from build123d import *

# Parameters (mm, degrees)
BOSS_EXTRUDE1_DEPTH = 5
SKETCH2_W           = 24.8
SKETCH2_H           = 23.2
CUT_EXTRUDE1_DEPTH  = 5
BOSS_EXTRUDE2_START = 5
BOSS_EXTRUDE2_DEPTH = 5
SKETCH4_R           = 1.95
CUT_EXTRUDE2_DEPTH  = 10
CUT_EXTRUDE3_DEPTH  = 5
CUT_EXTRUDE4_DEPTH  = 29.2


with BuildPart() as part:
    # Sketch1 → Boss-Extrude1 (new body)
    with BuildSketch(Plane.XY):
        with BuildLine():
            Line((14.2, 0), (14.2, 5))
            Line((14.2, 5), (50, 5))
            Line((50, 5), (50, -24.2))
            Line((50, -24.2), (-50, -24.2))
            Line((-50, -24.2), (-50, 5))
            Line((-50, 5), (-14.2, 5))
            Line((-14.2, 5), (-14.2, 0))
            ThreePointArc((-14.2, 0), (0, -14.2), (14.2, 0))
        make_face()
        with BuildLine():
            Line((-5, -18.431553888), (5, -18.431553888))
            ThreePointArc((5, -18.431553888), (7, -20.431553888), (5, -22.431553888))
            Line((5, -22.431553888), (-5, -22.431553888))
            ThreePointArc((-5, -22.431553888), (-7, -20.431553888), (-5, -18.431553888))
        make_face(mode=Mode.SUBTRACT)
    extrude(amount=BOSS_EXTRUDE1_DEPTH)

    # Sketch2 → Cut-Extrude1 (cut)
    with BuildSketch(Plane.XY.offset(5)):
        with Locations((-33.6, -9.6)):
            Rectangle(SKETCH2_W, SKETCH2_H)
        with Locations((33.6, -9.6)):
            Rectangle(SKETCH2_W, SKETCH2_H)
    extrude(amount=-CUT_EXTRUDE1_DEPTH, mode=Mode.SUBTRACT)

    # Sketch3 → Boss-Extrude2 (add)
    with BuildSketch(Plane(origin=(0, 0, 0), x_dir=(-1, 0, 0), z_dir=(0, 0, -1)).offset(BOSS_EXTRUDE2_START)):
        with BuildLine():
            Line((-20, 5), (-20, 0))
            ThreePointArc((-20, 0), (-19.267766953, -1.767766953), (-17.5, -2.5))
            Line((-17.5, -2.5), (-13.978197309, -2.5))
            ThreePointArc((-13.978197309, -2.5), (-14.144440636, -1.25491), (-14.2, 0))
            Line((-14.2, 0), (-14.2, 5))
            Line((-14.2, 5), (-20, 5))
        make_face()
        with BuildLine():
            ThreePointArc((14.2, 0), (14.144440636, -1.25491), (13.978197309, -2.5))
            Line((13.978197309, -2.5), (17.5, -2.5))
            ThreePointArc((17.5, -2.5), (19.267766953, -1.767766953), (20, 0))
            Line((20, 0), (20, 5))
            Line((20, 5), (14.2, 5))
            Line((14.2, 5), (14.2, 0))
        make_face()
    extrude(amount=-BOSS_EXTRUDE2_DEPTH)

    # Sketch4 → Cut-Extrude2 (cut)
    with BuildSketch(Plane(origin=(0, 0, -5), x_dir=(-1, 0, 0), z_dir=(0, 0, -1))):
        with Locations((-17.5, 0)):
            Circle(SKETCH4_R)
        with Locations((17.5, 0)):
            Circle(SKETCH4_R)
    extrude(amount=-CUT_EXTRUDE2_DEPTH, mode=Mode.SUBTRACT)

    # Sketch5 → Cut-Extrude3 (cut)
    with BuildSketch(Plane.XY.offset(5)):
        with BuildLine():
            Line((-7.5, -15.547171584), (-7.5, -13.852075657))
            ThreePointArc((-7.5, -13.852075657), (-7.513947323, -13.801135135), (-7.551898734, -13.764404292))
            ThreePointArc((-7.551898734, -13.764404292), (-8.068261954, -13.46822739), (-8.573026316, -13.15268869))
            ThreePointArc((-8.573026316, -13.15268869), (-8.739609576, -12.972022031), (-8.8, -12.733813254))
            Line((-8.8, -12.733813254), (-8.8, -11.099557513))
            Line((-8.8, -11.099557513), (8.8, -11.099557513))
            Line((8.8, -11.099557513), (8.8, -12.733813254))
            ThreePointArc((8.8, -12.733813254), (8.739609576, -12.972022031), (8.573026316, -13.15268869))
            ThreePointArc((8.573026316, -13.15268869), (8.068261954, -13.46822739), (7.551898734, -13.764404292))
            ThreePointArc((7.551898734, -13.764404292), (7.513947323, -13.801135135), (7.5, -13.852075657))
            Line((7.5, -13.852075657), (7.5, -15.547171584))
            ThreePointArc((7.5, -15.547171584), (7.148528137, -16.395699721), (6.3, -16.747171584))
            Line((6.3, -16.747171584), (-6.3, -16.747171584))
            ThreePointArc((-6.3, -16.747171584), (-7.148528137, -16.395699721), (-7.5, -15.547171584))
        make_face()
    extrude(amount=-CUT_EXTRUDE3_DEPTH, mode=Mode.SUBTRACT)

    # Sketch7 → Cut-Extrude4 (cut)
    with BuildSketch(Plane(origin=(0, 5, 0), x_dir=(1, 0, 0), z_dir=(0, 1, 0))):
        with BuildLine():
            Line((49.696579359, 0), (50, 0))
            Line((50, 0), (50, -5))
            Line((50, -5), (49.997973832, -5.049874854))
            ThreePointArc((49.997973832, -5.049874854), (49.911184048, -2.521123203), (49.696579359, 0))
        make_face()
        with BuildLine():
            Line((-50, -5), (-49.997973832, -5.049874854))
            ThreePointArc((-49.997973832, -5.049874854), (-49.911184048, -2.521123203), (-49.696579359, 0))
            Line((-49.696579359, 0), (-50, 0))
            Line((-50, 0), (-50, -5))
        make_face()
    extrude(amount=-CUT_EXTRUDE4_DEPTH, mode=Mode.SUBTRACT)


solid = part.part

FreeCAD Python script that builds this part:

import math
import FreeCAD as App
import Part
import Sketcher
from FreeCAD import Vector
Q = App.Units.Quantity

doc = App.newDocument("Part")
params = doc.addObject("Spreadsheet::Sheet", "Params")
for row, (alias, value) in enumerate([
    ("sketch1_radius", "2 mm"),
    ("sketch1_radius2", "14.2 mm"),
    ("sketch1_width", "100 mm"),
    ("sketch1_width2", "10 mm"),
    ("sketch1_height", "5 mm"),
    ("pad1_length", "5 mm"),
    ("sketch2_width", "24.8 mm"),
    ("sketch2_height", "23.2 mm"),
    ("pocket1_length", "5 mm"),
    ("sketch3_radius", "2.5 mm"),
    ("sketch3_radius2", "14.2 mm"),
    ("sketch3_height", "5 mm"),
    ("sketch3_width", "5.8 mm"),
    ("pad2_length", "5 mm"),
    ("sketch4_diameter", "3.9 mm"),
    ("pocket2_length", "10 mm"),
    ("sketch5_radius", "1.2 mm"),
    ("sketch5_radius2", "0.1 mm"),
    ("sketch5_radius3", "15.7 mm"),
    ("sketch5_radius4", "0.5 mm"),
    ("sketch5_width", "12.6 mm"),
    ("pocket3_length", "5 mm"),
    ("sketch6_radius", "49.999999 mm"),
    ("sketch6_height", "5 mm"),
    ("pocket4_length", "29.2 mm"),
], start=1):
    params.set(f"A{row}", alias)
    params.set(f"B{row}", "=" + value)
    params.setAlias(f"B{row}", alias)

body = doc.addObject("PartDesign::Body", "Body")

# Sketch on XY plane
sketch1 = body.newObject("Sketcher::SketchObject", "Sketch")
sketch1.AttachmentSupport = (doc.getObject("XY_Plane"), [""])
sketch1.MapMode = "FlatFace"
sketch1.addGeometry(Part.LineSegment(Vector(14.2, 5, 0), Vector(14.2, 0, 0)), False)
sketch1.addGeometry(Part.ArcOfCircle(Part.Circle(Vector(0, 0, 0), Vector(0, 0, 1), 14.2), math.radians(180), math.radians(360)), False)
sketch1.addGeometry(Part.LineSegment(Vector(-14.2, 0, 0), Vector(-14.2, 5, 0)), False)
sketch1.addGeometry(Part.LineSegment(Vector(-14.2, 5, 0), Vector(-50, 5, 0)), False)
sketch1.addGeometry(Part.LineSegment(Vector(-50, 5, 0), Vector(-50, -24.2, 0)), False)
sketch1.addGeometry(Part.LineSegment(Vector(-50, -24.2, 0), Vector(50, -24.2, 0)), False)
sketch1.addGeometry(Part.LineSegment(Vector(50, -24.2, 0), Vector(50, 5, 0)), False)
sketch1.addGeometry(Part.LineSegment(Vector(50, 5, 0), Vector(14.2, 5, 0)), False)
sketch1.addGeometry(Part.LineSegment(Vector(-5, -18.431554, 0), Vector(5, -18.431554, 0)), False)
sketch1.addGeometry(Part.ArcOfCircle(Part.Circle(Vector(5, -20.431554, 0), Vector(0, 0, 1), 2), math.radians(-90), math.radians(90)), False)
sketch1.addGeometry(Part.LineSegment(Vector(5, -22.431554, 0), Vector(-5, -22.431554, 0)), False)
sketch1.addGeometry(Part.ArcOfCircle(Part.Circle(Vector(-5, -20.431554, 0), Vector(0, 0, 1), 2), math.radians(90), math.radians(270)), False)
sketch1.addConstraint(Sketcher.Constraint("Tangent", 0, 2, 1, 2))
sketch1.addConstraint(Sketcher.Constraint("Tangent", 1, 1, 2, 1))
sketch1.addConstraint(Sketcher.Constraint("Coincident", 2, 2, 3, 1))
sketch1.addConstraint(Sketcher.Constraint("Coincident", 3, 2, 4, 1))
sketch1.addConstraint(Sketcher.Constraint("Coincident", 4, 2, 5, 1))
sketch1.addConstraint(Sketcher.Constraint("Coincident", 5, 2, 6, 1))
sketch1.addConstraint(Sketcher.Constraint("Coincident", 6, 2, 7, 1))
sketch1.addConstraint(Sketcher.Constraint("Coincident", 7, 2, 0, 1))
sketch1.addConstraint(Sketcher.Constraint("Tangent", 8, 2, 9, 2))
sketch1.addConstraint(Sketcher.Constraint("Tangent", 9, 1, 10, 1))
sketch1.addConstraint(Sketcher.Constraint("Tangent", 10, 2, 11, 2))
sketch1.addConstraint(Sketcher.Constraint("Tangent", 11, 1, 8, 1))
sketch1.addConstraint(Sketcher.Constraint("Vertical", 0))
sketch1.addConstraint(Sketcher.Constraint("Vertical", 2))
sketch1.addConstraint(Sketcher.Constraint("Horizontal", 3))
sketch1.addConstraint(Sketcher.Constraint("Vertical", 4))
sketch1.addConstraint(Sketcher.Constraint("Horizontal", 5))
sketch1.addConstraint(Sketcher.Constraint("Vertical", 6))
sketch1.addConstraint(Sketcher.Constraint("Horizontal", 7))
sketch1.addConstraint(Sketcher.Constraint("Horizontal", 8))
sketch1.addConstraint(Sketcher.Constraint("Horizontal", 10))
sketch1.addConstraint(Sketcher.Constraint("Coincident", 1, 3, -1, 1))
sketch1.addConstraint(Sketcher.Constraint("Symmetric", 3, 2, 6, 2, -2))
sketch1.addConstraint(Sketcher.Constraint("Radius", 9, Q("2 mm")))
sketch1.addConstraint(Sketcher.Constraint("Radius", 1, Q("14.2 mm")))
sketch1.addConstraint(Sketcher.Constraint("DistanceX", 5, 1, 5, 2, Q("100 mm")))
sketch1.addConstraint(Sketcher.Constraint("DistanceX", 8, 1, 8, 2, Q("10 mm")))
sketch1.addConstraint(Sketcher.Constraint("DistanceY", 0, 2, 0, 1, Q("5 mm")))
sketch1.addConstraint(Sketcher.Constraint("DistanceY", 4, 2, 4, 1, Q("29.2 mm")))
sketch1.addConstraint(Sketcher.Constraint("DistanceX", -1, 1, 9, 3, Q("5 mm")))
sketch1.addConstraint(Sketcher.Constraint("DistanceY", 9, 3, -1, 1, Q("20.431554 mm")))
sketch1.setExpression("Constraints[23]", "Params.sketch1_radius")
sketch1.setExpression("Constraints[24]", "Params.sketch1_radius2")
sketch1.setExpression("Constraints[25]", "Params.sketch1_width")
sketch1.setExpression("Constraints[26]", "Params.sketch1_width2")
sketch1.setExpression("Constraints[27]", "Params.sketch1_height")
pad1 = body.newObject("PartDesign::Pad", "Pad")
pad1.Profile = sketch1
pad1.setExpression("Length", "Params.pad1_length")

# Sketch on XY plane
sketch2 = body.newObject("Sketcher::SketchObject", "Sketch001")
sketch2.AttachmentSupport = (doc.getObject("XY_Plane"), [""])
sketch2.MapMode = "FlatFace"
sketch2.AttachmentOffset = App.Placement(Vector(0, 0, 5), App.Rotation())
sketch2.addGeometry(Part.LineSegment(Vector(-46, 2, 0), Vector(-46, -21.2, 0)), False)
sketch2.addGeometry(Part.LineSegment(Vector(-46, -21.2, 0), Vector(-21.2, -21.2, 0)), False)
sketch2.addGeometry(Part.LineSegment(Vector(-21.2, -21.2, 0), Vector(-21.2, 2, 0)), False)
sketch2.addGeometry(Part.LineSegment(Vector(-21.2, 2, 0), Vector(-46, 2, 0)), False)
sketch2.addGeometry(Part.LineSegment(Vector(21.2, 2, 0), Vector(21.2, -21.2, 0)), False)
sketch2.addGeometry(Part.LineSegment(Vector(21.2, -21.2, 0), Vector(46, -21.2, 0)), False)
sketch2.addGeometry(Part.LineSegment(Vector(46, -21.2, 0), Vector(46, 2, 0)), False)
sketch2.addGeometry(Part.LineSegment(Vector(46, 2, 0), Vector(21.2, 2, 0)), False)
sketch2.addConstraint(Sketcher.Constraint("Coincident", 0, 2, 1, 1))
sketch2.addConstraint(Sketcher.Constraint("Coincident", 1, 2, 2, 1))
sketch2.addConstraint(Sketcher.Constraint("Coincident", 2, 2, 3, 1))
sketch2.addConstraint(Sketcher.Constraint("Coincident", 3, 2, 0, 1))
sketch2.addConstraint(Sketcher.Constraint("Coincident", 4, 2, 5, 1))
sketch2.addConstraint(Sketcher.Constraint("Coincident", 5, 2, 6, 1))
sketch2.addConstraint(Sketcher.Constraint("Coincident", 6, 2, 7, 1))
sketch2.addConstraint(Sketcher.Constraint("Coincident", 7, 2, 4, 1))
sketch2.addConstraint(Sketcher.Constraint("Vertical", 0))
sketch2.addConstraint(Sketcher.Constraint("Horizontal", 1))
sketch2.addConstraint(Sketcher.Constraint("Vertical", 2))
sketch2.addConstraint(Sketcher.Constraint("Horizontal", 3))
sketch2.addConstraint(Sketcher.Constraint("Vertical", 4))
sketch2.addConstraint(Sketcher.Constraint("Horizontal", 5))
sketch2.addConstraint(Sketcher.Constraint("Vertical", 6))
sketch2.addConstraint(Sketcher.Constraint("Horizontal", 7))
sketch2.addConstraint(Sketcher.Constraint("Symmetric", 1, 2, 4, 2, -2))
sketch2.addConstraint(Sketcher.Constraint("Symmetric", 3, 2, 6, 2, -2))
sketch2.addConstraint(Sketcher.Constraint("DistanceX", 1, 1, 1, 2, Q("24.8 mm")))
sketch2.addConstraint(Sketcher.Constraint("DistanceY", 0, 2, 0, 1, Q("23.2 mm")))
sketch2.addConstraint(Sketcher.Constraint("DistanceX", 0, 2, -1, 1, Q("46 mm")))
sketch2.addConstraint(Sketcher.Constraint("DistanceY", -1, 1, 2, 2, Q("2 mm")))
sketch2.setExpression("Constraints[18]", "Params.sketch2_width")
sketch2.setExpression("Constraints[19]", "Params.sketch2_height")
pocket1 = body.newObject("PartDesign::Pocket", "Pocket")
pocket1.Profile = sketch2
pocket1.setExpression("Length", "Params.pocket1_length")

# Sketch on XY plane
sketch3 = body.newObject("Sketcher::SketchObject", "Sketch002")
sketch3.AttachmentSupport = (doc.getObject("XY_Plane"), [""])
sketch3.MapMode = "FlatFace"
sketch3.AttachmentOffset = App.Placement(Vector(0, 0, -5), App.Rotation())
sketch3.addGeometry(Part.LineSegment(Vector(20, 5, 0), Vector(20, 0, 0)), False)
sketch3.addGeometry(Part.ArcOfCircle(Part.Circle(Vector(17.5, 0, 0), Vector(0, 0, 1), 2.5), math.radians(-90), math.radians(0)), False)
sketch3.addGeometry(Part.LineSegment(Vector(17.5, -2.5, 0), Vector(13.978197, -2.5, 0)), False)
sketch3.addGeometry(Part.ArcOfCircle(Part.Circle(Vector(0, 0, 0), Vector(0, 0, 1), 14.2), math.radians(-10.140136), math.radians(0)), False)
sketch3.addGeometry(Part.LineSegment(Vector(14.2, 0, 0), Vector(14.2, 5, 0)), False)
sketch3.addGeometry(Part.LineSegment(Vector(14.2, 5, 0), Vector(20, 5, 0)), False)
sketch3.addGeometry(Part.ArcOfCircle(Part.Circle(Vector(0, 0, 0), Vector(0, 0, 1), 14.2), math.radians(180), math.radians(190.140136)), False)
sketch3.addGeometry(Part.LineSegment(Vector(-13.978197, -2.5, 0), Vector(-17.5, -2.5, 0)), False)
sketch3.addGeometry(Part.ArcOfCircle(Part.Circle(Vector(-17.5, 0, 0), Vector(0, 0, 1), 2.5), math.radians(180), math.radians(270)), False)
sketch3.addGeometry(Part.LineSegment(Vector(-20, 0, 0), Vector(-20, 5, 0)), False)
sketch3.addGeometry(Part.LineSegment(Vector(-20, 5, 0), Vector(-14.2, 5, 0)), False)
sketch3.addGeometry(Part.LineSegment(Vector(-14.2, 5, 0), Vector(-14.2, 0, 0)), False)
sketch3.addConstraint(Sketcher.Constraint("Tangent", 0, 2, 1, 2))
sketch3.addConstraint(Sketcher.Constraint("Tangent", 1, 1, 2, 1))
sketch3.addConstraint(Sketcher.Constraint("Coincident", 2, 2, 3, 1))
sketch3.addConstraint(Sketcher.Constraint("Tangent", 3, 2, 4, 1))
sketch3.addConstraint(Sketcher.Constraint("Coincident", 4, 2, 5, 1))
sketch3.addConstraint(Sketcher.Constraint("Coincident", 5, 2, 0, 1))
sketch3.addConstraint(Sketcher.Constraint("Coincident", 6, 2, 7, 1))
sketch3.addConstraint(Sketcher.Constraint("Tangent", 7, 2, 8, 2))
sketch3.addConstraint(Sketcher.Constraint("Tangent", 8, 1, 9, 1))
sketch3.addConstraint(Sketcher.Constraint("Coincident", 9, 2, 10, 1))
sketch3.addConstraint(Sketcher.Constraint("Coincident", 10, 2, 11, 1))
sketch3.addConstraint(Sketcher.Constraint("Tangent", 11, 2, 6, 1))
sketch3.addConstraint(Sketcher.Constraint("Vertical", 0))
sketch3.addConstraint(Sketcher.Constraint("Horizontal", 2))
sketch3.addConstraint(Sketcher.Constraint("Vertical", 4))
sketch3.addConstraint(Sketcher.Constraint("Horizontal", 5))
sketch3.addConstraint(Sketcher.Constraint("Horizontal", 7))
sketch3.addConstraint(Sketcher.Constraint("Vertical", 9))
sketch3.addConstraint(Sketcher.Constraint("Horizontal", 10))
sketch3.addConstraint(Sketcher.Constraint("Vertical", 11))
sketch3.addConstraint(Sketcher.Constraint("Coincident", 3, 3, -1, 1))
sketch3.addConstraint(Sketcher.Constraint("Coincident", 6, 3, -1, 1))
sketch3.addConstraint(Sketcher.Constraint("Equal", 3, 6))
sketch3.addConstraint(Sketcher.Constraint("Equal", 1, 8))
sketch3.addConstraint(Sketcher.Constraint("Symmetric", 1, 3, 8, 3, -1, 1))
sketch3.addConstraint(Sketcher.Constraint("PointOnObject", 1, 3, -1))
sketch3.addConstraint(Sketcher.Constraint("Horizontal", 5, 2, 9, 2))
sketch3.addConstraint(Sketcher.Constraint("Radius", 1, Q("2.5 mm")))
sketch3.addConstraint(Sketcher.Constraint("Radius", 3, Q("14.2 mm")))
sketch3.addConstraint(Sketcher.Constraint("DistanceY", 0, 2, 0, 1, Q("5 mm")))
sketch3.addConstraint(Sketcher.Constraint("DistanceX", 5, 1, 5, 2, Q("5.8 mm")))
sketch3.setExpression("Constraints[27]", "Params.sketch3_radius")
sketch3.setExpression("Constraints[28]", "Params.sketch3_radius2")
sketch3.setExpression("Constraints[29]", "Params.sketch3_height")
sketch3.setExpression("Constraints[30]", "Params.sketch3_width")
pad2 = body.newObject("PartDesign::Pad", "Pad001")
pad2.Profile = sketch3
pad2.setExpression("Length", "Params.pad2_length")

# Sketch on XY plane
sketch4 = body.newObject("Sketcher::SketchObject", "Sketch003")
sketch4.AttachmentSupport = (doc.getObject("XY_Plane"), [""])
sketch4.MapMode = "FlatFace"
sketch4.AttachmentOffset = App.Placement(Vector(0, 0, -5), App.Rotation())
sketch4.addGeometry(Part.Circle(Vector(17.5, 0, 0), Vector(0, 0, 1), 1.95), False)
sketch4.addGeometry(Part.Circle(Vector(-17.5, 0, 0), Vector(0, 0, 1), 1.95), False)
sketch4.addConstraint(Sketcher.Constraint("Equal", 0, 1))
sketch4.addConstraint(Sketcher.Constraint("Symmetric", 0, 3, 1, 3, -1, 1))
sketch4.addConstraint(Sketcher.Constraint("PointOnObject", 0, 3, -1))
sketch4.addConstraint(Sketcher.Constraint("Diameter", 0, Q("3.9 mm")))
sketch4.addConstraint(Sketcher.Constraint("DistanceX", 1, 3, 0, 3, Q("35 mm")))
sketch4.setExpression("Constraints[3]", "Params.sketch4_diameter")
pocket2 = body.newObject("PartDesign::Pocket", "Pocket001")
pocket2.Profile = sketch4
pocket2.setExpression("Length", "Params.pocket2_length")
pocket2.Reversed = True

# Sketch on XY plane
sketch5 = body.newObject("Sketcher::SketchObject", "Sketch004")
sketch5.AttachmentSupport = (doc.getObject("XY_Plane"), [""])
sketch5.MapMode = "FlatFace"
sketch5.AttachmentOffset = App.Placement(Vector(0, 0, 5), App.Rotation())
sketch5.addGeometry(Part.LineSegment(Vector(-7.5, -13.852076, 0), Vector(-7.5, -15.547172, 0)), False)
sketch5.addGeometry(Part.ArcOfCircle(Part.Circle(Vector(-6.3, -15.547172, 0), Vector(0, 0, 1), 1.2), math.radians(-180), math.radians(-90)), False)
sketch5.addGeometry(Part.LineSegment(Vector(-6.3, -16.747172, 0), Vector(6.3, -16.747172, 0)), False)
sketch5.addGeometry(Part.ArcOfCircle(Part.Circle(Vector(6.3, -15.547172, 0), Vector(0, 0, 1), 1.2), math.radians(-90), math.radians(0)), False)
sketch5.addGeometry(Part.LineSegment(Vector(7.5, -15.547172, 0), Vector(7.5, -13.852076, 0)), False)
sketch5.addGeometry(Part.ArcOfCircle(Part.Circle(Vector(7.6, -13.852076, 0), Vector(0, 0, 1), 0.1), math.radians(118.751562), math.radians(180)), False)
sketch5.addGeometry(Part.ArcOfCircle(Part.Circle(Vector(0, 0, 0), Vector(0, 0, 1), 15.7), math.radians(-61.248439), math.radians(-56.903374)), False)
sketch5.addGeometry(Part.ArcOfCircle(Part.Circle(Vector(8.3, -12.733813, 0), Vector(0, 0, 1), 0.5), math.radians(-56.903374), math.radians(0)), False)
sketch5.addGeometry(Part.LineSegment(Vector(8.8, -12.733813, 0), Vector(8.8, -11.099558, 0)), False)
sketch5.addGeometry(Part.LineSegment(Vector(8.8, -11.099558, 0), Vector(-8.8, -11.099558, 0)), False)
sketch5.addGeometry(Part.LineSegment(Vector(-8.8, -11.099558, 0), Vector(-8.8, -12.733813, 0)), False)
sketch5.addGeometry(Part.ArcOfCircle(Part.Circle(Vector(-8.3, -12.733813, 0), Vector(0, 0, 1), 0.5), math.radians(180), math.radians(236.903374)), False)
sketch5.addGeometry(Part.ArcOfCircle(Part.Circle(Vector(0, 0, 0), Vector(0, 0, 1), 15.7), math.radians(-123.096626), math.radians(-118.751561)), False)
sketch5.addGeometry(Part.ArcOfCircle(Part.Circle(Vector(-7.6, -13.852076, 0), Vector(0, 0, 1), 0.1), math.radians(0), math.radians(61.248438)), False)
sketch5.addConstraint(Sketcher.Constraint("Tangent", 0, 2, 1, 1))
sketch5.addConstraint(Sketcher.Constraint("Tangent", 1, 2, 2, 1))
sketch5.addConstraint(Sketcher.Constraint("Tangent", 2, 2, 3, 1))
sketch5.addConstraint(Sketcher.Constraint("Tangent", 3, 2, 4, 1))
sketch5.addConstraint(Sketcher.Constraint("Tangent", 4, 2, 5, 2))
sketch5.addConstraint(Sketcher.Constraint("Tangent", 5, 1, 6, 1))
sketch5.addConstraint(Sketcher.Constraint("Tangent", 6, 2, 7, 1))
sketch5.addConstraint(Sketcher.Constraint("Tangent", 7, 2, 8, 1))
sketch5.addConstraint(Sketcher.Constraint("Coincident", 8, 2, 9, 1))
sketch5.addConstraint(Sketcher.Constraint("Coincident", 9, 2, 10, 1))
sketch5.addConstraint(Sketcher.Constraint("Tangent", 10, 2, 11, 1))
sketch5.addConstraint(Sketcher.Constraint("Tangent", 11, 2, 12, 1))
sketch5.addConstraint(Sketcher.Constraint("Tangent", 12, 2, 13, 2))
sketch5.addConstraint(Sketcher.Constraint("Tangent", 13, 1, 0, 1))
sketch5.addConstraint(Sketcher.Constraint("Vertical", 0))
sketch5.addConstraint(Sketcher.Constraint("Horizontal", 2))
sketch5.addConstraint(Sketcher.Constraint("Vertical", 4))
sketch5.addConstraint(Sketcher.Constraint("Vertical", 8))
sketch5.addConstraint(Sketcher.Constraint("Horizontal", 9))
sketch5.addConstraint(Sketcher.Constraint("Vertical", 10))
sketch5.addConstraint(Sketcher.Constraint("Coincident", 6, 3, -1, 1))
sketch5.addConstraint(Sketcher.Constraint("Coincident", 12, 3, -1, 1))
sketch5.addConstraint(Sketcher.Constraint("Equal", 1, 3))
sketch5.addConstraint(Sketcher.Constraint("Equal", 7, 11))
sketch5.addConstraint(Sketcher.Constraint("Equal", 6, 12))
sketch5.addConstraint(Sketcher.Constraint("Equal", 5, 13))
sketch5.addConstraint(Sketcher.Constraint("Horizontal", 7, 3, 11, 3))
sketch5.addConstraint(Sketcher.Constraint("Horizontal", 5, 3, 13, 3))
sketch5.addConstraint(Sketcher.Constraint("Radius", 1, Q("1.2 mm")))
sketch5.addConstraint(Sketcher.Constraint("Radius", 5, Q("0.1 mm")))
sketch5.addConstraint(Sketcher.Constraint("Radius", 6, Q("15.7 mm")))
sketch5.addConstraint(Sketcher.Constraint("Radius", 7, Q("0.5 mm")))
sketch5.addConstraint(Sketcher.Constraint("DistanceX", 2, 1, 2, 2, Q("12.6 mm")))
sketch5.addConstraint(Sketcher.Constraint("DistanceX", 9, 2, 9, 1, Q("17.6 mm")))
sketch5.addConstraint(Sketcher.Constraint("DistanceY", 0, 2, 0, 1, Q("1.695096 mm")))
sketch5.addConstraint(Sketcher.Constraint("DistanceY", 8, 1, 8, 2, Q("1.634256 mm")))
sketch5.setExpression("Constraints[28]", "Params.sketch5_radius")
sketch5.setExpression("Constraints[29]", "Params.sketch5_radius2")
sketch5.setExpression("Constraints[30]", "Params.sketch5_radius3")
sketch5.setExpression("Constraints[31]", "Params.sketch5_radius4")
sketch5.setExpression("Constraints[32]", "Params.sketch5_width")
pocket3 = body.newObject("PartDesign::Pocket", "Pocket002")
pocket3.Profile = sketch5
pocket3.setExpression("Length", "Params.pocket3_length")

# Sketch on XZ plane
sketch6 = body.newObject("Sketcher::SketchObject", "Sketch005")
sketch6.AttachmentSupport = (doc.getObject("XZ_Plane"), [""])
sketch6.MapMode = "FlatFace"
sketch6.AttachmentOffset = App.Placement(Vector(0, 0, -5), App.Rotation())
sketch6.addGeometry(Part.LineSegment(Vector(50, 0, 0), Vector(49.696579, 0, 0)), False)
sketch6.addGeometry(Part.ArcOfCircle(Part.Circle(Vector(0.000001, 5.5, 0), Vector(0, 0, 1), 49.999999), math.radians(-6.315316), math.radians(-0.515812)), False)
sketch6.addGeometry(Part.LineSegment(Vector(49.997974, 5.049875, 0), Vector(50, 5, 0)), False)
sketch6.addGeometry(Part.LineSegment(Vector(50, 5, 0), Vector(50, 0, 0)), False)
sketch6.addGeometry(Part.LineSegment(Vector(-50, 5, 0), Vector(-49.997974, 5.049875, 0)), False)
sketch6.addGeometry(Part.ArcOfCircle(Part.Circle(Vector(-0.000001, 5.5, 0), Vector(0, 0, 1), 49.999999), math.radians(-179.484188), math.radians(-173.684684)), False)
sketch6.addGeometry(Part.LineSegment(Vector(-49.696579, 0, 0), Vector(-50, 0, 0)), False)
sketch6.addGeometry(Part.LineSegment(Vector(-50, 0, 0), Vector(-50, 5, 0)), False)
sketch6.addConstraint(Sketcher.Constraint("Coincident", 0, 2, 1, 1))
sketch6.addConstraint(Sketcher.Constraint("Coincident", 1, 2, 2, 1))
sketch6.addConstraint(Sketcher.Constraint("Coincident", 2, 2, 3, 1))
sketch6.addConstraint(Sketcher.Constraint("Coincident", 3, 2, 0, 1))
sketch6.addConstraint(Sketcher.Constraint("Coincident", 4, 2, 5, 1))
sketch6.addConstraint(Sketcher.Constraint("Coincident", 5, 2, 6, 1))
sketch6.addConstraint(Sketcher.Constraint("Coincident", 6, 2, 7, 1))
sketch6.addConstraint(Sketcher.Constraint("Coincident", 7, 2, 4, 1))
sketch6.addConstraint(Sketcher.Constraint("Horizontal", 0))
sketch6.addConstraint(Sketcher.Constraint("Vertical", 3))
sketch6.addConstraint(Sketcher.Constraint("Horizontal", 6))
sketch6.addConstraint(Sketcher.Constraint("Vertical", 7))
sketch6.addConstraint(Sketcher.Constraint("Coincident", 5, 3, 1, 3))
sketch6.addConstraint(Sketcher.Constraint("Equal", 1, 5))
sketch6.addConstraint(Sketcher.Constraint("Symmetric", 0, 2, 5, 2, -1, 1))
sketch6.addConstraint(Sketcher.Constraint("Symmetric", 1, 2, 4, 2, -2))
sketch6.addConstraint(Sketcher.Constraint("Symmetric", 2, 2, 7, 2, -2))
sketch6.addConstraint(Sketcher.Constraint("Radius", 1, Q("49.999999 mm")))
sketch6.addConstraint(Sketcher.Constraint("DistanceY", 3, 2, 3, 1, Q("5 mm")))
sketch6.addConstraint(Sketcher.Constraint("DistanceX", -1, 1, 2, 2, Q("50 mm")))
sketch6.addConstraint(Sketcher.Constraint("DistanceY", -1, 1, 1, 3, Q("5.5 mm")))
sketch6.addConstraint(Sketcher.Constraint("Distance", 2, Q("0.049916 mm")))
sketch6.setExpression("Constraints[17]", "Params.sketch6_radius")
sketch6.setExpression("Constraints[18]", "Params.sketch6_height")
pocket4 = body.newObject("PartDesign::Pocket", "Pocket003")
pocket4.Profile = sketch6
pocket4.setExpression("Length", "Params.pocket4_length")
pocket4.Reversed = True

doc.recompute()
